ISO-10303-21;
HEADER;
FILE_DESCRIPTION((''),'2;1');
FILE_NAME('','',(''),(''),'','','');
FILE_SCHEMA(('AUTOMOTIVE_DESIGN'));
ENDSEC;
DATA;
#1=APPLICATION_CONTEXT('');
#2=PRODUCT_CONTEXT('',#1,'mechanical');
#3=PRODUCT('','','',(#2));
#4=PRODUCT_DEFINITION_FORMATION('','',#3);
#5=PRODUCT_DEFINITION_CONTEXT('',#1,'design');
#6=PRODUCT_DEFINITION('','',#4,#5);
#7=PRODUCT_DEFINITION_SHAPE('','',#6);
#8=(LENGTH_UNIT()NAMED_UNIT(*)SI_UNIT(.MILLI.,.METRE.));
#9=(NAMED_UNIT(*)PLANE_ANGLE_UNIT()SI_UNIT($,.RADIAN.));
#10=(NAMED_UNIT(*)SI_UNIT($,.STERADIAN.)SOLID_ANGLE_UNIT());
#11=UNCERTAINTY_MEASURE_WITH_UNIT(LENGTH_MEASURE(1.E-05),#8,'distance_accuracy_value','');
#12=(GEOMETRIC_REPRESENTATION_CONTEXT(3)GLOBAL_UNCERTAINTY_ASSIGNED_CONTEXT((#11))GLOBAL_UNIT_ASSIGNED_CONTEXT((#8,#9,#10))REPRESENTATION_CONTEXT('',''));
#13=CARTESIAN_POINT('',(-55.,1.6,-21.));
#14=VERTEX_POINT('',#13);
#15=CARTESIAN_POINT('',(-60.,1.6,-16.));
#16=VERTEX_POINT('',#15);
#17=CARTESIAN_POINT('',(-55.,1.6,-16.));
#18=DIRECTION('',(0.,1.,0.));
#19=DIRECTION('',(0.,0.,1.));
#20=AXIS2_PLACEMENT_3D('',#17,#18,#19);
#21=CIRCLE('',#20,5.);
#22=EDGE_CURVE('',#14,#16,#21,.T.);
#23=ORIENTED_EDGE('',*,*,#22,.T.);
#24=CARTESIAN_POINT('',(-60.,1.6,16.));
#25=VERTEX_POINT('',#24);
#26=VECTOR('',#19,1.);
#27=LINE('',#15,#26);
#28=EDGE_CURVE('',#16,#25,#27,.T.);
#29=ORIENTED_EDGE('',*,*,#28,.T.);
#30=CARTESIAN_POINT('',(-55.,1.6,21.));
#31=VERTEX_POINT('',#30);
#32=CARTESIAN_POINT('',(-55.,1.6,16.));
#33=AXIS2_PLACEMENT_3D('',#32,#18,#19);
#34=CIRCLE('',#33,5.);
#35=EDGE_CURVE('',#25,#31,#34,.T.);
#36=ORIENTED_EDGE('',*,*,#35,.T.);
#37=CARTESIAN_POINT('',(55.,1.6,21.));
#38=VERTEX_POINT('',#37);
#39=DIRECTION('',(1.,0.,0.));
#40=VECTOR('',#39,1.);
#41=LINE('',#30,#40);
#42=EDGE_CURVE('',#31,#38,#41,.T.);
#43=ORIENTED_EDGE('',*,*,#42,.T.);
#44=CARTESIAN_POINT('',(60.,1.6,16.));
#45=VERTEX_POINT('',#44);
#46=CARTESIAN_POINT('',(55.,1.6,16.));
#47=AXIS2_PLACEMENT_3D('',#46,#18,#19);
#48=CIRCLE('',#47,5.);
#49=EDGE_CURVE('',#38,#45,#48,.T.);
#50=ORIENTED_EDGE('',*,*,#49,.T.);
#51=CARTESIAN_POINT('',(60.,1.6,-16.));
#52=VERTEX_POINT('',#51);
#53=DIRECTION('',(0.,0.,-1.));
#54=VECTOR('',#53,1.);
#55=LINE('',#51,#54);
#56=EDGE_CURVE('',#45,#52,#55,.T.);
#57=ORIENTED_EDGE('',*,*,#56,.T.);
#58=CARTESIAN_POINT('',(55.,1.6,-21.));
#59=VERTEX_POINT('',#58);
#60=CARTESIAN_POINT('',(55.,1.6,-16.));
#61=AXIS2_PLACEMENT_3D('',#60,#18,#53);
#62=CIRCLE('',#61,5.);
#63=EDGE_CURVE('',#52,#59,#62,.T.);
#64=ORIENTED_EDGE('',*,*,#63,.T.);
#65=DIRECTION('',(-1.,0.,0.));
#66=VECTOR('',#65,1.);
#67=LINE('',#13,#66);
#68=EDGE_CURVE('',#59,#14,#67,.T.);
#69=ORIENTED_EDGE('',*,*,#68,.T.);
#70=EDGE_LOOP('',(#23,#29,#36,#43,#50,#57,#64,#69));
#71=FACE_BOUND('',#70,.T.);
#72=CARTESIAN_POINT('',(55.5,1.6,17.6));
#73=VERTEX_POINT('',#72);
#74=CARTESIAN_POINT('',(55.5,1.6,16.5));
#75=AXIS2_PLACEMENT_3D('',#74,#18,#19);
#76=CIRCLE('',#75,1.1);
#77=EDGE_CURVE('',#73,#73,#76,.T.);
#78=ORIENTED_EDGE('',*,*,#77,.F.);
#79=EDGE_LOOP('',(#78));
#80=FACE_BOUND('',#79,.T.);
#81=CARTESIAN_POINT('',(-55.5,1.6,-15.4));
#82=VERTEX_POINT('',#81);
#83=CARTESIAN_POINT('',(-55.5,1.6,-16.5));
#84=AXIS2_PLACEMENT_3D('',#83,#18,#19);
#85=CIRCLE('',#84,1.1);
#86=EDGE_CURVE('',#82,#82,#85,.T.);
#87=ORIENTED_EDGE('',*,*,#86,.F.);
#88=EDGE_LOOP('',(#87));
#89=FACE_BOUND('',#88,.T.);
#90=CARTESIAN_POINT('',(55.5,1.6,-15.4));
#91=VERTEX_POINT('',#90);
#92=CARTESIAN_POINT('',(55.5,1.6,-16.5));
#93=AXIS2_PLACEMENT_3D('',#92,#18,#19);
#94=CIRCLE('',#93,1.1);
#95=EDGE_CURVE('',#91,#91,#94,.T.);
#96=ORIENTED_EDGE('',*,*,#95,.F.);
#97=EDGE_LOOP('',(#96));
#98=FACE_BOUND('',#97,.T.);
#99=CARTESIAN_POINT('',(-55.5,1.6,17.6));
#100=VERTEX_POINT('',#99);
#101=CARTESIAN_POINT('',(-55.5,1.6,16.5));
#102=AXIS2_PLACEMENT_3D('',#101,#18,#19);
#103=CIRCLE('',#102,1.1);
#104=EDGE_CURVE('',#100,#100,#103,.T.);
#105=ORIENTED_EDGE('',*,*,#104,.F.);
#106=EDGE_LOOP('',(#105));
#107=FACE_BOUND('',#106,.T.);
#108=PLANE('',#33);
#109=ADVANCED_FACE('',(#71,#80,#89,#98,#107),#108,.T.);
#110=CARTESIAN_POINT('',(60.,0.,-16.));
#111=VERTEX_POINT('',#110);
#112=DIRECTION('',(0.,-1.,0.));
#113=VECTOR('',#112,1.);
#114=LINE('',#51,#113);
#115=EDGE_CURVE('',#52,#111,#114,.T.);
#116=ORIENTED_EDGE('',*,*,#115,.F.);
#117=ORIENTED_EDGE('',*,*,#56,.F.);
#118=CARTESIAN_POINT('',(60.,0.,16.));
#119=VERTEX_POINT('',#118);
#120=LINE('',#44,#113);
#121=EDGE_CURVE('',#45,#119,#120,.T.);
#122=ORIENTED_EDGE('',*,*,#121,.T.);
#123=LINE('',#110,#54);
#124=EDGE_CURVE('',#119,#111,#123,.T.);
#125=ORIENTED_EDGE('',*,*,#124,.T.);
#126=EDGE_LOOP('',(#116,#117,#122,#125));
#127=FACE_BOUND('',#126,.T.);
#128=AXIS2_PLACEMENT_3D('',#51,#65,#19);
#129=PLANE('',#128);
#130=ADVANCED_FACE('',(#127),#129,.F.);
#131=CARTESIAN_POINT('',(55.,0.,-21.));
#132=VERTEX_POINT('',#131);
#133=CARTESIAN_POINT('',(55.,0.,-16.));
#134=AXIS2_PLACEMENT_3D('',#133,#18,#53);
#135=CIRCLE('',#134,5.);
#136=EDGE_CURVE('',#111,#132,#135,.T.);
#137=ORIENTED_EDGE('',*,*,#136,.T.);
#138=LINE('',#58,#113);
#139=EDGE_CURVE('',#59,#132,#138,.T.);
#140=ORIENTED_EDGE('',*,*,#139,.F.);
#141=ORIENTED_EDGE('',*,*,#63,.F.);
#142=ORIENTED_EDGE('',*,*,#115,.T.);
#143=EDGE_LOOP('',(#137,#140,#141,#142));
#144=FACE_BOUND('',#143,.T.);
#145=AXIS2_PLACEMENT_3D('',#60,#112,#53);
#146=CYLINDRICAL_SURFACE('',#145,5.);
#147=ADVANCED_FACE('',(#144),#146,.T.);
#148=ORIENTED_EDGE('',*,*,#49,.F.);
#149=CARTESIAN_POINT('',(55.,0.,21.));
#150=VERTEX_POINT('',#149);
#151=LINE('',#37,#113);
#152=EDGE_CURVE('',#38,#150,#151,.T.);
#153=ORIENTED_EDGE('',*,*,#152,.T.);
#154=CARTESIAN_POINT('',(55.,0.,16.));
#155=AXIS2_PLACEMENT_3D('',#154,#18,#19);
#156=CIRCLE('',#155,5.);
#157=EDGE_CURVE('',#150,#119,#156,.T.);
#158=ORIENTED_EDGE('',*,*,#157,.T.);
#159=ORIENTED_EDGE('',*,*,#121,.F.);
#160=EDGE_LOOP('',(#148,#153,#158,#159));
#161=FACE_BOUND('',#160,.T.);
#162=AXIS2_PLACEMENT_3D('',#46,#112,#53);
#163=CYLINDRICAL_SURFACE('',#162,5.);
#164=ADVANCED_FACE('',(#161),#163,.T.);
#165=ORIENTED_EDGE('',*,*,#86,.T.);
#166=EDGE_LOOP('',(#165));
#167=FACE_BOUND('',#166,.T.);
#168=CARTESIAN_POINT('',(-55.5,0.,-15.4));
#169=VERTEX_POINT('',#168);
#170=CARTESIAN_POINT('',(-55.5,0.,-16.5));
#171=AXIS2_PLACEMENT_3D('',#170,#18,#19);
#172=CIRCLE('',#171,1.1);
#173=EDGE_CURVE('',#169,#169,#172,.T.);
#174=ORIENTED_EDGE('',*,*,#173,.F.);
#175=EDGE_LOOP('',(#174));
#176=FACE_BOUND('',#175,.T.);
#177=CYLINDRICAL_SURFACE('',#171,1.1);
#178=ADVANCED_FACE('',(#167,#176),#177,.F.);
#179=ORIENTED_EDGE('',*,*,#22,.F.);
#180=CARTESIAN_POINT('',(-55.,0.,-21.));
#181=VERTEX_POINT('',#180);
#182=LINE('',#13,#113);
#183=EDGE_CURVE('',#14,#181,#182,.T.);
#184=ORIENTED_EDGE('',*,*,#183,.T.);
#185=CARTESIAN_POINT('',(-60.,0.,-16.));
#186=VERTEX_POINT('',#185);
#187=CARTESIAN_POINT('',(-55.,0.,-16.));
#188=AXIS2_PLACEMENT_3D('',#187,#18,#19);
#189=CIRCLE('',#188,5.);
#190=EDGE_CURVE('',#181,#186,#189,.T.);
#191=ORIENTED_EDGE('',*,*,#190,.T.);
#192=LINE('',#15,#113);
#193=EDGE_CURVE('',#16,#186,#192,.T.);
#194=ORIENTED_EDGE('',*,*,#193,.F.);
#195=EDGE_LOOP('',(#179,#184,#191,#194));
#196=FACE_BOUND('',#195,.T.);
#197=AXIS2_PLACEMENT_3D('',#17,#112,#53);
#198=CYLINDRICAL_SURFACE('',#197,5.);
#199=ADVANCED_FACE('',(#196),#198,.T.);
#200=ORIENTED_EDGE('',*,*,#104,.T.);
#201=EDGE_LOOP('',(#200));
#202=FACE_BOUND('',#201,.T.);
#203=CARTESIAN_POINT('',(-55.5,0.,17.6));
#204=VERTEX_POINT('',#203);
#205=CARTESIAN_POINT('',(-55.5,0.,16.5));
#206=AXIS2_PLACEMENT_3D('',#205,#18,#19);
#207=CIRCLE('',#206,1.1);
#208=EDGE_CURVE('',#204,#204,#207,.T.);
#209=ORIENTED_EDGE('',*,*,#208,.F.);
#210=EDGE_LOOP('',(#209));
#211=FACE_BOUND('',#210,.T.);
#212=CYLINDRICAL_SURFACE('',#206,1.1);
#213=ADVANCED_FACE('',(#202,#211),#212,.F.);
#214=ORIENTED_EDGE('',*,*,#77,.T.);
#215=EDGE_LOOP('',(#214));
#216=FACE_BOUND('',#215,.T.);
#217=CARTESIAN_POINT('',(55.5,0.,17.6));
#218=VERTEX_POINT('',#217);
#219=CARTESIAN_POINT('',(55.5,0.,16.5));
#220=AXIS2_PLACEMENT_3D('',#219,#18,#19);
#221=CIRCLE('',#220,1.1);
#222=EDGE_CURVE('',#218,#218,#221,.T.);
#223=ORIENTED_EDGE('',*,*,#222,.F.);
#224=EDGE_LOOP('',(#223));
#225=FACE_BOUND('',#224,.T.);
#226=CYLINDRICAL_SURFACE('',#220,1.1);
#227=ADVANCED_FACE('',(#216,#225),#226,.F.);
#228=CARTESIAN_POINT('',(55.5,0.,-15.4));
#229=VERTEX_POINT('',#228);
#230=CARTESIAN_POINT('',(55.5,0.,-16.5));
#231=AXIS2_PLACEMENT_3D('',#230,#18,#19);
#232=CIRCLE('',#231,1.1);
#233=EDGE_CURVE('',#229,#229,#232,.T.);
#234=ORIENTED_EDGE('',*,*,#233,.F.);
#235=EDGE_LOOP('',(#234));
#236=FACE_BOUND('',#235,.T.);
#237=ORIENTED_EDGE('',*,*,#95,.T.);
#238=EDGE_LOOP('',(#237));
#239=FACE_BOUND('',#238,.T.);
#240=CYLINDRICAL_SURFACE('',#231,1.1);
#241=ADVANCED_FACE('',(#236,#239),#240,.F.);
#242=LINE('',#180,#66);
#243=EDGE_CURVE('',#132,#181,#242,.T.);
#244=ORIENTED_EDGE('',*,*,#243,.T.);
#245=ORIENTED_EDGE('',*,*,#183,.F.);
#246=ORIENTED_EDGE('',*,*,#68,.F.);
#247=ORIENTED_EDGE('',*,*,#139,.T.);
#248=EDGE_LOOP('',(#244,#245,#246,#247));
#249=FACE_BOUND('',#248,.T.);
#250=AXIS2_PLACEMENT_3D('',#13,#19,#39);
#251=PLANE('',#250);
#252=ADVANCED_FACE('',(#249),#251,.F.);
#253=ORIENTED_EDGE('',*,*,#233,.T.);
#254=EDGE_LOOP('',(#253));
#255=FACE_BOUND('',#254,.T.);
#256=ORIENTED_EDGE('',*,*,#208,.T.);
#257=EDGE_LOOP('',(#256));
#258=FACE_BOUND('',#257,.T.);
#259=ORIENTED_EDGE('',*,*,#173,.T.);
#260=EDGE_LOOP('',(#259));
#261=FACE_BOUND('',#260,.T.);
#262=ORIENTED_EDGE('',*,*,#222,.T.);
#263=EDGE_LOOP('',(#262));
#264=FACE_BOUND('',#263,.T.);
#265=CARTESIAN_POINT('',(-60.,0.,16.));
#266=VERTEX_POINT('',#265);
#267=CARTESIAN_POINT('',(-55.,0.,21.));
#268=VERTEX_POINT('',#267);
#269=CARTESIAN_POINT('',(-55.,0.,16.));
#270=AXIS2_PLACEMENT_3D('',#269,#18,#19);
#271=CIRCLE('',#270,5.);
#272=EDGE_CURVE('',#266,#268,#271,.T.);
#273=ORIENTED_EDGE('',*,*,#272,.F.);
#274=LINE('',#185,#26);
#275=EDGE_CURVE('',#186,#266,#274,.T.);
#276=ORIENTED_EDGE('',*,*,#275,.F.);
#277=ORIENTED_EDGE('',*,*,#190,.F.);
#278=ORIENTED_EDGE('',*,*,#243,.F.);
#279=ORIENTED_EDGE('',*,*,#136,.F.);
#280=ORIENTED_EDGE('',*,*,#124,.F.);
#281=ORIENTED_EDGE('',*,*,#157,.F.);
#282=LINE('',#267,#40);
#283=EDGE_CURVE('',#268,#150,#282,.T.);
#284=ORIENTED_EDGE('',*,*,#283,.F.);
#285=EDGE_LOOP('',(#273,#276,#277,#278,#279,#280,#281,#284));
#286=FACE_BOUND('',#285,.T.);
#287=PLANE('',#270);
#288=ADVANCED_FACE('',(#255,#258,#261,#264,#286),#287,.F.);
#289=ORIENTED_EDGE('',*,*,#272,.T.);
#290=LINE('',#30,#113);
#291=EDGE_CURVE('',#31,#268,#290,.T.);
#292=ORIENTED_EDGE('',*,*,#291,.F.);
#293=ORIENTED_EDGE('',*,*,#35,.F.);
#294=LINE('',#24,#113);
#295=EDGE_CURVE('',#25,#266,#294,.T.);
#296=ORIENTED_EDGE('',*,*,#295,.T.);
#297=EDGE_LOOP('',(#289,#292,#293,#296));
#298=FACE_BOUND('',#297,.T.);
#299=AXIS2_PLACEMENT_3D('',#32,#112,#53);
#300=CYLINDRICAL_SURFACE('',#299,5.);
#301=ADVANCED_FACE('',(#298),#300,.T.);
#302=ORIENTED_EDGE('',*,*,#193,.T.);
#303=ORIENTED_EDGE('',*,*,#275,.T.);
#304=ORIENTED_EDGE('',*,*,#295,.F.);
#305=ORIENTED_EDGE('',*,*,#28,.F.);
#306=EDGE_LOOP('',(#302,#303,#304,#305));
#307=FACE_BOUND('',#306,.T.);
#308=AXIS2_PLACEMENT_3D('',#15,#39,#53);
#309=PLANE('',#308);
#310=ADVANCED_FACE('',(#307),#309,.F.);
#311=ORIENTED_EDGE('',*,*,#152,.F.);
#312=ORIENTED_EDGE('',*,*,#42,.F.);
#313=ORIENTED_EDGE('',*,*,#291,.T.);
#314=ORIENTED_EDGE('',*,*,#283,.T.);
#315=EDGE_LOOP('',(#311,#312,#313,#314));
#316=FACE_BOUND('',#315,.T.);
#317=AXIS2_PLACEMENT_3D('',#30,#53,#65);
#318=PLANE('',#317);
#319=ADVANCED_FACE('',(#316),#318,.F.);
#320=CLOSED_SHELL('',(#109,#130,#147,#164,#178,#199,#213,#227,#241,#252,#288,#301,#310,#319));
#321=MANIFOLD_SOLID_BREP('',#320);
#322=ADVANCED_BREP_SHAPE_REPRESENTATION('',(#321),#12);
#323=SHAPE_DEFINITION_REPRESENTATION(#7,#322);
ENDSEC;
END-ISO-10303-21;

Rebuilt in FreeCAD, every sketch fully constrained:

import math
import FreeCAD as App
import Part
import Sketcher

V = App.Vector
Q = App.Units.Quantity

doc = App.newDocument("Part")
body = doc.addObject("PartDesign::Body", "Body")

sketch1 = body.newObject("Sketcher::SketchObject", "Sketch")
sketch1.AttachmentSupport = (doc.getObject("XZ_Plane"), [""])
sketch1.MapMode = "FlatFace"
sketch1.addGeometry([
    Part.LineSegment(V(55, -21, 0), V(-55, -21, 0)),
    Part.ArcOfCircle(Part.Circle(V(-55, -16, 0), V(0, 0, 1), 5), math.radians(180), math.radians(270)),
    Part.LineSegment(V(-60, -16, 0), V(-60, 16, 0)),
    Part.ArcOfCircle(Part.Circle(V(-55, 16, 0), V(0, 0, 1), 5), math.radians(90), math.radians(180)),
    Part.LineSegment(V(-55, 21, 0), V(55, 21, 0)),
    Part.ArcOfCircle(Part.Circle(V(55, 16, 0), V(0, 0, 1), 5), math.radians(0), math.radians(90)),
    Part.LineSegment(V(60, 16, 0), V(60, -16, 0)),
    Part.ArcOfCircle(Part.Circle(V(55, -16, 0), V(0, 0, 1), 5), math.radians(-90), math.radians(0)),
], False)
sketch1.addConstraint([
    Sketcher.Constraint("Tangent", 0, 2, 1, 2),
    Sketcher.Constraint("Tangent", 1, 1, 2, 1),
    Sketcher.Constraint("Tangent", 2, 2, 3, 2),
    Sketcher.Constraint("Tangent", 3, 1, 4, 1),
    Sketcher.Constraint("Tangent", 4, 2, 5, 2),
    Sketcher.Constraint("Tangent", 5, 1, 6, 1),
    Sketcher.Constraint("Tangent", 6, 2, 7, 2),
    Sketcher.Constraint("Tangent", 7, 1, 0, 1),
    Sketcher.Constraint("Horizontal", 0),
    Sketcher.Constraint("Vertical", 2),
    Sketcher.Constraint("Horizontal", 4),
    Sketcher.Constraint("Vertical", 6),
    Sketcher.Constraint("Equal", 1, 3),
    Sketcher.Constraint("Equal", 3, 5),
    Sketcher.Constraint("Equal", 5, 7),
    Sketcher.Constraint("Symmetric", 1, 3, 5, 3, -1, 1),
    Sketcher.Constraint("Radius", 1, Q("5 mm")),
    Sketcher.Constraint("DistanceX", 0, 2, 0, 1, Q("110 mm")),
    Sketcher.Constraint("DistanceY", 2, 1, 2, 2, Q("32 mm")),
])
pad1 = body.newObject("PartDesign::Pad", "Pad")
pad1.Profile = sketch1
pad1.Length = 1.6
pad1.Reversed = True

sketch2 = body.newObject("Sketcher::SketchObject", "Sketch001")
sketch2.AttachmentSupport = (doc.getObject("XZ_Plane"), [""])
sketch2.MapMode = "FlatFace"
sketch2.AttachmentOffset = App.Placement(V(0, 0, -1.6), App.Rotation())
sketch2.addGeometry([
    Part.Circle(V(-55.5, -16.5, 0), V(0, 0, 1), 1.1),
    Part.Circle(V(-55.5, 16.5, 0), V(0, 0, 1), 1.1),
    Part.Circle(V(55.5, -16.5, 0), V(0, 0, 1), 1.1),
    Part.Circle(V(55.5, 16.5, 0), V(0, 0, 1), 1.1),
], False)
sketch2.addConstraint([
    Sketcher.Constraint("Equal", 0, 1),
    Sketcher.Constraint("Equal", 1, 2),
    Sketcher.Constraint("Equal", 2, 3),
    Sketcher.Constraint("Symmetric", 1, 3, 2, 3, -1, 1),
    Sketcher.Constraint("Symmetric", 0, 3, 3, 3, -1, 1),
    Sketcher.Constraint("Symmetric", 0, 3, 2, 3, -2),
    Sketcher.Constraint("Diameter", 0, Q("2.2 mm")),
    Sketcher.Constraint("DistanceY", 0, 3, 1, 3, Q("33 mm")),
    Sketcher.Constraint("DistanceX", 0, 3, 2, 3, Q("111 mm")),
])
pocket1 = body.newObject("PartDesign::Pocket", "Pocket")
pocket1.Profile = sketch2
pocket1.Type = "ThroughAll"
pocket1.Reversed = True

doc.recompute()
